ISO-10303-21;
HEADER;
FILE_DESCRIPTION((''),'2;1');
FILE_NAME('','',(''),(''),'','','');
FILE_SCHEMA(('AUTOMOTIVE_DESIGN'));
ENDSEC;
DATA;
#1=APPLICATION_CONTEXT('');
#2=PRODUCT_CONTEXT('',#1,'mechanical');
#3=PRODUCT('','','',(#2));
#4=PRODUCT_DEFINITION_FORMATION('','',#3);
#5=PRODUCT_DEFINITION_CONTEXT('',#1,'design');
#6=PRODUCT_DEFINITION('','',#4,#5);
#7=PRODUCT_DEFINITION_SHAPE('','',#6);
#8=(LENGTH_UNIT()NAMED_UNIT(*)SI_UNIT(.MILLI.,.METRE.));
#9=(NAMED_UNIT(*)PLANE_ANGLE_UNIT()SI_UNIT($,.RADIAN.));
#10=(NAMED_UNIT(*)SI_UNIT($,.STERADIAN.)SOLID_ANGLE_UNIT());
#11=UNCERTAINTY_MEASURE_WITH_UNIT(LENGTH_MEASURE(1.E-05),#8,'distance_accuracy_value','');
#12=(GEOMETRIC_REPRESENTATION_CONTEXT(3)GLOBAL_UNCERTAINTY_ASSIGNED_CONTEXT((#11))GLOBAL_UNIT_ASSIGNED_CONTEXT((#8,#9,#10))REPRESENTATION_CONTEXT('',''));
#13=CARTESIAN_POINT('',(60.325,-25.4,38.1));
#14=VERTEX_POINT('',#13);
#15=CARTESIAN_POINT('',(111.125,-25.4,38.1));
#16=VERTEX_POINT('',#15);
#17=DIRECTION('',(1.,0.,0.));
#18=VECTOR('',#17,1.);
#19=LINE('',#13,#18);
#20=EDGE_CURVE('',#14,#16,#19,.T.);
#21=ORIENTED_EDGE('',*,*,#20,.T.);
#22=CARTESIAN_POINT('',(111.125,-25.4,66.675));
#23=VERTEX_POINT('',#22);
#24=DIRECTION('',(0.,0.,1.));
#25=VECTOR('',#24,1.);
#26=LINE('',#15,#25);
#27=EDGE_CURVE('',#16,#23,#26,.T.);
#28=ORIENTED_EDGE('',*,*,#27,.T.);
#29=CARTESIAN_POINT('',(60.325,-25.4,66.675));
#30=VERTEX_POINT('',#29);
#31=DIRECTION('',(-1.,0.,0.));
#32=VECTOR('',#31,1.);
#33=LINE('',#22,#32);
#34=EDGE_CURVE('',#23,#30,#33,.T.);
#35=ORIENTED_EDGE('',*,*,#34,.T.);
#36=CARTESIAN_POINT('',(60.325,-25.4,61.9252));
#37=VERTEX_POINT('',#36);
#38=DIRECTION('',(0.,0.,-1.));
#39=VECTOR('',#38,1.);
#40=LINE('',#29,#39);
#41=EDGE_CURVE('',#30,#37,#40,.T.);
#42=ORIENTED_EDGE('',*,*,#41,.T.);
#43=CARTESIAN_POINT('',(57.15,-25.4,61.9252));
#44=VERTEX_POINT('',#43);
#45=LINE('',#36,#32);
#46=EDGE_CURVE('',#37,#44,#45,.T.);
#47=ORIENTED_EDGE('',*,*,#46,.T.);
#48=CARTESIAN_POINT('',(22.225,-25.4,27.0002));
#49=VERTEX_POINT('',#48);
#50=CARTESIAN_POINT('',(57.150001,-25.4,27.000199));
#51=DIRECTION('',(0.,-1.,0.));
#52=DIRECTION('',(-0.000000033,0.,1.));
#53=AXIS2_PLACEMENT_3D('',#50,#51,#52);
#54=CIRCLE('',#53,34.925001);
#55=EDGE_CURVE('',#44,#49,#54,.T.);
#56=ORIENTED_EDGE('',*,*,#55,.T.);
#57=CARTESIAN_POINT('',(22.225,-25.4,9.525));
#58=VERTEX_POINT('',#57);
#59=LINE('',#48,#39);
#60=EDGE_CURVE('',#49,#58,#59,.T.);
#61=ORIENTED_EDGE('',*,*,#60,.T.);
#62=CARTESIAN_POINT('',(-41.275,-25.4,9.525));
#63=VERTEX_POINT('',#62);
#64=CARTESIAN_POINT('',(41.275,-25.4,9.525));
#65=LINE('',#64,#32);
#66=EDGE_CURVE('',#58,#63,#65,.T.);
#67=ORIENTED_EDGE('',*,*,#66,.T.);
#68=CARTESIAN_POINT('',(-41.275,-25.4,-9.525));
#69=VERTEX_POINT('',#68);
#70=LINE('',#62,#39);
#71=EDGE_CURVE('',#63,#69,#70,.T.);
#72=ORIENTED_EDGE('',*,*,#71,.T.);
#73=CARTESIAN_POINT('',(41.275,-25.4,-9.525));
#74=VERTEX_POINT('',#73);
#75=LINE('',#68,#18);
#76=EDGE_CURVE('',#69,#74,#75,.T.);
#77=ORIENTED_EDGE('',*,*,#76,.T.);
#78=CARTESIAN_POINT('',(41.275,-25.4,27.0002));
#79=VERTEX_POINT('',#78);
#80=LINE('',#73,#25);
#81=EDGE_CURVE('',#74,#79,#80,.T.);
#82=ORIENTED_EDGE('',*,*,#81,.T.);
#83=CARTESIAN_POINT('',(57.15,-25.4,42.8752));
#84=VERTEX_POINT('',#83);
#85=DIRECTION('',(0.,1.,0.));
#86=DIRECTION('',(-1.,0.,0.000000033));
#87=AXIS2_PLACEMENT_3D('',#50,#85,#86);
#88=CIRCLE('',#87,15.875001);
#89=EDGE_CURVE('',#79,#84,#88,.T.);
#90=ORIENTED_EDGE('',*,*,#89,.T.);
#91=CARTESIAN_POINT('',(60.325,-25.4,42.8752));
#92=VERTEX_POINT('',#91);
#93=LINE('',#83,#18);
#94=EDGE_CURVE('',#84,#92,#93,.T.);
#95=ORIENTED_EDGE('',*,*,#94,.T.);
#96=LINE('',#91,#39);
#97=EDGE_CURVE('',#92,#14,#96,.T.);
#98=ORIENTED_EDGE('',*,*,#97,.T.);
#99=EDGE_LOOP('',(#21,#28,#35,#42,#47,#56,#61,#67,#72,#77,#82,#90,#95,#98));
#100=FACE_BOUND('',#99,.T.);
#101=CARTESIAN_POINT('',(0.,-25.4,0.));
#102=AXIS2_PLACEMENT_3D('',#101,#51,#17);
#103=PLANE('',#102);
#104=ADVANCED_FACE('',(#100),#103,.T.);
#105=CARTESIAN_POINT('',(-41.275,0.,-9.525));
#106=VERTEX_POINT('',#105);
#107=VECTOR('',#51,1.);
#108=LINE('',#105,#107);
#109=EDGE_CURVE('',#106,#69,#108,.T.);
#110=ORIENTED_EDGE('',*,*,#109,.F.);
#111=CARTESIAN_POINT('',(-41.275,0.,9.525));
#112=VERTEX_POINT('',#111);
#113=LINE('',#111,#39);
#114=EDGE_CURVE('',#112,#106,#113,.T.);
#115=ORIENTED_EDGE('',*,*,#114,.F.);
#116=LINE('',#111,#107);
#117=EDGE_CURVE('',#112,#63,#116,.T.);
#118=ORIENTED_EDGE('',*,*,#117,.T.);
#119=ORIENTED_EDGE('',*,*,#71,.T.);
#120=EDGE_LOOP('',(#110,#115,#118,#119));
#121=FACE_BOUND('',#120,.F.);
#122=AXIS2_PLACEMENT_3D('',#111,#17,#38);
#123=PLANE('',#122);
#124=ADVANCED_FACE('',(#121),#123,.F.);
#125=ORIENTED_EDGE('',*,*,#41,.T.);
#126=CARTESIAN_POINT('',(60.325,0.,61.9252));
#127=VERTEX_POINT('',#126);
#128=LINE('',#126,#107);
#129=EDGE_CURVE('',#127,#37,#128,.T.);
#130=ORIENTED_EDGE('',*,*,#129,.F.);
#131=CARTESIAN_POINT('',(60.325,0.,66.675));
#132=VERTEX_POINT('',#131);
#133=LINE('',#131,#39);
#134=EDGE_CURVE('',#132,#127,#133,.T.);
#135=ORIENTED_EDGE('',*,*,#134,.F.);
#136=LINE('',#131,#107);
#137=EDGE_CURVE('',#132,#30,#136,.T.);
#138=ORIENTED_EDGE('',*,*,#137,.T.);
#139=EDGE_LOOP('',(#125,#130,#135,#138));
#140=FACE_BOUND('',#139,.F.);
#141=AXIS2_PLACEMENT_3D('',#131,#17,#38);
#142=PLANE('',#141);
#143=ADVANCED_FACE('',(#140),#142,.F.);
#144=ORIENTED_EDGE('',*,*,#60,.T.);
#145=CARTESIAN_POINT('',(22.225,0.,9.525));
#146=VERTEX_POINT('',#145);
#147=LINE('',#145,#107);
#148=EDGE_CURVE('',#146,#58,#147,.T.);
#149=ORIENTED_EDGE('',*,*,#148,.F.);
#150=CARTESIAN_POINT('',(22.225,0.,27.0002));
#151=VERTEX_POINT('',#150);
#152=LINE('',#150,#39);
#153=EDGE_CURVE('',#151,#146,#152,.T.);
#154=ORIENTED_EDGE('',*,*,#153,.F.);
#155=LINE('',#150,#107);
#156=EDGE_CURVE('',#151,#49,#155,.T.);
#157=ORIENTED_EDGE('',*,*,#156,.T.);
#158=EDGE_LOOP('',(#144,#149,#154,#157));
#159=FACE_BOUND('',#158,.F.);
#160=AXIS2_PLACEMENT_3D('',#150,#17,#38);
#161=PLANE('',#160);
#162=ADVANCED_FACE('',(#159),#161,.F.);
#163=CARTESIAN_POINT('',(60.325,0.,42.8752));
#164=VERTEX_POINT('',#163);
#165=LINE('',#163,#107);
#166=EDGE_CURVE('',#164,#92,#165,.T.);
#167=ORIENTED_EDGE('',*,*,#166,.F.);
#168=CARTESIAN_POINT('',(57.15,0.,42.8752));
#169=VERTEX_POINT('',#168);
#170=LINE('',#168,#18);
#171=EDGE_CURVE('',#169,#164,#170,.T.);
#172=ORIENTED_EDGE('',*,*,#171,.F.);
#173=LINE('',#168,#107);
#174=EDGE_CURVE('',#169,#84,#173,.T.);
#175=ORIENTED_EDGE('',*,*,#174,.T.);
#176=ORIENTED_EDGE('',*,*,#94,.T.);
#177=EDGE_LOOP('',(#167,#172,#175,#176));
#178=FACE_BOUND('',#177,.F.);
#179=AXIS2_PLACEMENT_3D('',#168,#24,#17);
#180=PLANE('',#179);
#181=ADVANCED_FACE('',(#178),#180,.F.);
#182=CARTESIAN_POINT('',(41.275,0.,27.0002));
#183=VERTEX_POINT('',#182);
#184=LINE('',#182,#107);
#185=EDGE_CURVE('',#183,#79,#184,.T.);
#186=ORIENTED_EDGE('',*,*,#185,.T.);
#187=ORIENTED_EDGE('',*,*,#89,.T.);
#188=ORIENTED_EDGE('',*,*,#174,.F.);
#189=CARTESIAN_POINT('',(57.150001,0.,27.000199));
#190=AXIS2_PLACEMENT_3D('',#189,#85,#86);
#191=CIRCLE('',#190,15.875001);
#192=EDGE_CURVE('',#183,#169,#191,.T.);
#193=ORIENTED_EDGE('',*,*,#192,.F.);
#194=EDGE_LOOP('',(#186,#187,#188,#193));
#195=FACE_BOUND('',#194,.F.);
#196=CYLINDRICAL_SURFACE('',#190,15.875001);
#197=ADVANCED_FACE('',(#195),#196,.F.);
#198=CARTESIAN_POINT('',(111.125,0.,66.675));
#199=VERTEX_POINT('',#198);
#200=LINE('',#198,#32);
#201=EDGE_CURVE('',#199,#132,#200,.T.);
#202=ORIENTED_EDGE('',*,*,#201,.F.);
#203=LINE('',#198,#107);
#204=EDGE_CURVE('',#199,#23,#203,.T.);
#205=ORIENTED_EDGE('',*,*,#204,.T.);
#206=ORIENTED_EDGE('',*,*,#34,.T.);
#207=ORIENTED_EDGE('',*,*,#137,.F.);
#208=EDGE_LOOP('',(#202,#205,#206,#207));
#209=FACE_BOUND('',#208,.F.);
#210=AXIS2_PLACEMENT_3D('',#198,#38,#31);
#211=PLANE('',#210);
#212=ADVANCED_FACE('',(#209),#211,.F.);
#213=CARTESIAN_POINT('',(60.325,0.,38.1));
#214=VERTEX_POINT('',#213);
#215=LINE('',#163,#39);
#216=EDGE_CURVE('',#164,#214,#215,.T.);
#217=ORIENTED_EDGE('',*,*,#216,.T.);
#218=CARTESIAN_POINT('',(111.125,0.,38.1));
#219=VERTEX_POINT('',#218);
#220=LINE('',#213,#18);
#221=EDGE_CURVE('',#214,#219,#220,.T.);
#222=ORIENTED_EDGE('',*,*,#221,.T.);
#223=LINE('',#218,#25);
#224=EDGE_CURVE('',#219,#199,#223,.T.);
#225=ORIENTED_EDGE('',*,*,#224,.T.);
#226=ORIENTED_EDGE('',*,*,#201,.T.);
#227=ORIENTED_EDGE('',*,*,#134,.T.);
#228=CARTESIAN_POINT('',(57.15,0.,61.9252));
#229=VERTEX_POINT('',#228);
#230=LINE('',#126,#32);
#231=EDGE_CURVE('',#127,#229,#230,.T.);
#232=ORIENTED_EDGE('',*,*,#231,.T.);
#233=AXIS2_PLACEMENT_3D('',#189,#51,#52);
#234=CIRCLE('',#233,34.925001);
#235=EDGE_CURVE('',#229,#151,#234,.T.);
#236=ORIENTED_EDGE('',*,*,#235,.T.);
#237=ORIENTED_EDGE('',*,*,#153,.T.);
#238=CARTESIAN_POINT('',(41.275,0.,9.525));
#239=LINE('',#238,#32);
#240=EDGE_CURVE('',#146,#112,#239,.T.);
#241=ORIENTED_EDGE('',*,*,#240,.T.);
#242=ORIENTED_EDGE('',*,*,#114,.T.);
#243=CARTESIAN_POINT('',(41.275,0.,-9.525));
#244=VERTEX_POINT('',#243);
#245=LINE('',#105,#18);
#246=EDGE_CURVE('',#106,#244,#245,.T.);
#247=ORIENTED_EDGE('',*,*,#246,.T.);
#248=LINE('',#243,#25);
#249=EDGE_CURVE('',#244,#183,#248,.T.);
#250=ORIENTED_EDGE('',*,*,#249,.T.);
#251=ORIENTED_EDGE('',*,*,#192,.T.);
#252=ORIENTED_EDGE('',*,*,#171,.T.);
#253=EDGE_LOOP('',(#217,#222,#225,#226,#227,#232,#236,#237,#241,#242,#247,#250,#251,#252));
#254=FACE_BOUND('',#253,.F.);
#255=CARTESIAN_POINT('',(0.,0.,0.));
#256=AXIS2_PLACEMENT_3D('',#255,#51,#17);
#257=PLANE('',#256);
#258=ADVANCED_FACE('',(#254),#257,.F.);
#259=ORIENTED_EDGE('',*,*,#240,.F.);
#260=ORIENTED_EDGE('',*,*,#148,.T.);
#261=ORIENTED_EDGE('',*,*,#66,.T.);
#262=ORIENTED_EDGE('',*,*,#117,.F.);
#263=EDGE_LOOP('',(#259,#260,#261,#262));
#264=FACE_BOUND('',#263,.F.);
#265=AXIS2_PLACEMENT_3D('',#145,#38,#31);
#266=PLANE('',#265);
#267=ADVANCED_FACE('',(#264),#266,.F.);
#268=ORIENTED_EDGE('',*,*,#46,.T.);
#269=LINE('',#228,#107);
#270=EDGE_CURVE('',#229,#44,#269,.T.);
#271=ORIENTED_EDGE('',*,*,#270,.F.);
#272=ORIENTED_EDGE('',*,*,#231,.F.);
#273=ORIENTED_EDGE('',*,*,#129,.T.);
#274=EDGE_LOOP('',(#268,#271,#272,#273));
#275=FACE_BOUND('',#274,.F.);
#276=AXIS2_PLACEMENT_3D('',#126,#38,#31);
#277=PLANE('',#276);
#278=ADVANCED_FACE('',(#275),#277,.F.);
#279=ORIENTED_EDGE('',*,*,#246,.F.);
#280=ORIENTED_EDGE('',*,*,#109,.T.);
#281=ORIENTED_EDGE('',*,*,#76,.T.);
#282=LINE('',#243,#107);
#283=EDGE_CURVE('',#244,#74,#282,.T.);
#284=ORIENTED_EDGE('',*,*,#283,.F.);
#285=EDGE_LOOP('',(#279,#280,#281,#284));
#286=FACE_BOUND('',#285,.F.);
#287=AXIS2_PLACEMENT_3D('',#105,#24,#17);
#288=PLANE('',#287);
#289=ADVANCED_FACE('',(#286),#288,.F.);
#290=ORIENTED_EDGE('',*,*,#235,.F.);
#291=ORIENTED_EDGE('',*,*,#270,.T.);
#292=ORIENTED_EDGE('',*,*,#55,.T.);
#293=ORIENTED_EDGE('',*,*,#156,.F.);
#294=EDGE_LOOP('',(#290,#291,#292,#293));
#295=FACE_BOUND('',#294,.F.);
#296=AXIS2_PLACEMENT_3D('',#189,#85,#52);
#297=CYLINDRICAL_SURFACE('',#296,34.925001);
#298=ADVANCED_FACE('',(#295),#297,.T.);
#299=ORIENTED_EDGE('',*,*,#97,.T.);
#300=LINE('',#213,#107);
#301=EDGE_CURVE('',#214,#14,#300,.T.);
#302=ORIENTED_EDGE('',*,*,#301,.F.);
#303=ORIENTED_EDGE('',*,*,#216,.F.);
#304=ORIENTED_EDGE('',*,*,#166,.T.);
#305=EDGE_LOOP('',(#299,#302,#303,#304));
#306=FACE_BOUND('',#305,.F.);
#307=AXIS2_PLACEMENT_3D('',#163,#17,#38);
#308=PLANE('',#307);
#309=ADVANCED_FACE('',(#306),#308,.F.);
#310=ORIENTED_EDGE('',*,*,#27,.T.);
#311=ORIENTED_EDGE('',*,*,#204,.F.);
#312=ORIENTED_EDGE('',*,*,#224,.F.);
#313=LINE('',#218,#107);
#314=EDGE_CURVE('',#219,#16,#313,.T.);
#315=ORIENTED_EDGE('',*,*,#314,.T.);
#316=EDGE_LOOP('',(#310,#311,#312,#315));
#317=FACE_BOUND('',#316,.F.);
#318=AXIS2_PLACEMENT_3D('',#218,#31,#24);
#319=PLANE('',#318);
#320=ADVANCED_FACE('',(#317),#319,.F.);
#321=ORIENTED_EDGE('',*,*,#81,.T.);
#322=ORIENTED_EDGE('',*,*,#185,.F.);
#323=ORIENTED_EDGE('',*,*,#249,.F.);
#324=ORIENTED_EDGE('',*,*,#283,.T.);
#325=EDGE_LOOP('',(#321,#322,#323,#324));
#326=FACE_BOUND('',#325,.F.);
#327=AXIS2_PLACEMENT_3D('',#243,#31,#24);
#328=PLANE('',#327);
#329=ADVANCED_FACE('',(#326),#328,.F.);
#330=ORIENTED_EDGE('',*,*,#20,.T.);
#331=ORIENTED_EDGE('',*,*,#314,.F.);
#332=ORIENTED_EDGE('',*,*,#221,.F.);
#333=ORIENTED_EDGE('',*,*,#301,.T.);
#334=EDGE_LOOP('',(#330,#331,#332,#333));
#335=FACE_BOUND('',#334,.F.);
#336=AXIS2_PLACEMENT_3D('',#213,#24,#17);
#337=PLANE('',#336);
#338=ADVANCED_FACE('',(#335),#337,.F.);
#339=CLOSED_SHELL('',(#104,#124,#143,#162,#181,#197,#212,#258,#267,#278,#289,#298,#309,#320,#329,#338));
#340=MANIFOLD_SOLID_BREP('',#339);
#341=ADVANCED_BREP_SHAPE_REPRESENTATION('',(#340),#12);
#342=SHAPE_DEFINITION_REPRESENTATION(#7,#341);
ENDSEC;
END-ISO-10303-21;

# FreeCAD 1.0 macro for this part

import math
import FreeCAD as App
import Part
import Sketcher
Q = App.Units.Quantity

doc = App.newDocument("Part")
body = doc.addObject("PartDesign::Body", "Body")

# Sketch on XZ plane
sketch1 = body.newObject("Sketcher::SketchObject", "Sketch")
sketch1.AttachmentSupport = (doc.getObject("XZ_Plane"), [""])
sketch1.MapMode = "FlatFace"
sketch1.addGeometry(Part.LineSegment(App.Vector(-41.3, -9.5, 0), App.Vector(41.3, -9.5, 0)), False)
sketch1.addGeometry(Part.LineSegment(App.Vector(41.3, -9.5, 0), App.Vector(41.3, 27, 0)), False)
sketch1.addGeometry(Part.ArcOfCircle(Part.Circle(App.Vector(57.2, 27, 0), App.Vector(0, 0, 1), 15.9), math.radians(90), math.radians(180)), False)
sketch1.addGeometry(Part.LineSegment(App.Vector(57.1, 42.9, 0), App.Vector(60.3, 42.9, 0)), False)
sketch1.addGeometry(Part.LineSegment(App.Vector(60.3, 42.9, 0), App.Vector(60.3, 38.1, 0)), False)
sketch1.addGeometry(Part.LineSegment(App.Vector(60.3, 38.1, 0), App.Vector(111.1, 38.1, 0)), False)
sketch1.addGeometry(Part.LineSegment(App.Vector(111.1, 38.1, 0), App.Vector(111.1, 66.7, 0)), False)
sketch1.addGeometry(Part.LineSegment(App.Vector(111.1, 66.7, 0), App.Vector(60.3, 66.7, 0)), False)
sketch1.addGeometry(Part.LineSegment(App.Vector(60.3, 66.7, 0), App.Vector(60.3, 61.9, 0)), False)
sketch1.addGeometry(Part.LineSegment(App.Vector(60.3, 61.9, 0), App.Vector(57.1, 61.9, 0)), False)
sketch1.addGeometry(Part.ArcOfCircle(Part.Circle(App.Vector(57.2, 27, 0), App.Vector(0, 0, 1), 34.9), math.radians(90), math.radians(180)), False)
sketch1.addGeometry(Part.LineSegment(App.Vector(22.2, 27, 0), App.Vector(22.2, 9.5, 0)), False)
sketch1.addGeometry(Part.LineSegment(App.Vector(22.2, 9.5, 0), App.Vector(-41.3, 9.5, 0)), False)
sketch1.addGeometry(Part.LineSegment(App.Vector(-41.3, 9.5, 0), App.Vector(-41.3, -9.5, 0)), False)
sketch1.addConstraint(Sketcher.Constraint("Coincident", 0, 2, 1, 1))
sketch1.addConstraint(Sketcher.Constraint("Tangent", 1, 2, 2, 2))
sketch1.addConstraint(Sketcher.Constraint("Tangent", 2, 1, 3, 1))
sketch1.addConstraint(Sketcher.Constraint("Coincident", 3, 2, 4, 1))
sketch1.addConstraint(Sketcher.Constraint("Coincident", 4, 2, 5, 1))
sketch1.addConstraint(Sketcher.Constraint("Coincident", 5, 2, 6, 1))
sketch1.addConstraint(Sketcher.Constraint("Coincident", 6, 2, 7, 1))
sketch1.addConstraint(Sketcher.Constraint("Coincident", 7, 2, 8, 1))
sketch1.addConstraint(Sketcher.Constraint("Coincident", 8, 2, 9, 1))
sketch1.addConstraint(Sketcher.Constraint("Tangent", 9, 2, 10, 1))
sketch1.addConstraint(Sketcher.Constraint("Tangent", 10, 2, 11, 1))
sketch1.addConstraint(Sketcher.Constraint("Coincident", 11, 2, 12, 1))
sketch1.addConstraint(Sketcher.Constraint("Coincident", 12, 2, 13, 1))
sketch1.addConstraint(Sketcher.Constraint("Coincident", 13, 2, 0, 1))
sketch1.addConstraint(Sketcher.Constraint("Horizontal", 0))
sketch1.addConstraint(Sketcher.Constraint("Vertical", 1))
sketch1.addConstraint(Sketcher.Constraint("Horizontal", 3))
sketch1.addConstraint(Sketcher.Constraint("Vertical", 4))
sketch1.addConstraint(Sketcher.Constraint("Horizontal", 5))
sketch1.addConstraint(Sketcher.Constraint("Vertical", 6))
sketch1.addConstraint(Sketcher.Constraint("Horizontal", 7))
sketch1.addConstraint(Sketcher.Constraint("Vertical", 8))
sketch1.addConstraint(Sketcher.Constraint("Horizontal", 9))
sketch1.addConstraint(Sketcher.Constraint("Vertical", 11))
sketch1.addConstraint(Sketcher.Constraint("Horizontal", 12))
sketch1.addConstraint(Sketcher.Constraint("Vertical", 13))
sketch1.addConstraint(Sketcher.Constraint("Coincident", 10, 3, 2, 3))
sketch1.addConstraint(Sketcher.Constraint("Symmetric", 0, 2, 12, 2, -1, 1))
sketch1.addConstraint(Sketcher.Constraint("Vertical", 4, 2, 7, 2))
sketch1.addConstraint(Sketcher.Constraint("DistanceX", 5, 1, 5, 2, Q("2 in")))
sketch1.addConstraint(Sketcher.Constraint("DistanceX", 12, 2, 12, 1, Q("2.5 in")))
sketch1.addConstraint(Sketcher.Constraint("Radius", 2, Q("0.625 in")))
sketch1.addConstraint(Sketcher.Constraint("Radius", 10, Q("1.375 in")))
sketch1.addConstraint(Sketcher.Constraint("DistanceY", 13, 2, 13, 1, Q("0.75 in")))
sketch1.addConstraint(Sketcher.Constraint("DistanceY", -1, 1, 4, 2, Q("1.5 in")))
sketch1.addConstraint(Sketcher.Constraint("DistanceX", 10, 2, 4, 2, Q("1.5 in")))
sketch1.addConstraint(Sketcher.Constraint("DistanceY", 1, 1, 1, 2, Q("1.438 in")))
sketch1.addConstraint(Sketcher.Constraint("DistanceY", 6, 1, 6, 2, Q("1.125 in")))
pad1 = body.newObject("PartDesign::Pad", "Pad")
pad1.Profile = sketch1
pad1.Length = Q("1 in")

doc.recompute()
